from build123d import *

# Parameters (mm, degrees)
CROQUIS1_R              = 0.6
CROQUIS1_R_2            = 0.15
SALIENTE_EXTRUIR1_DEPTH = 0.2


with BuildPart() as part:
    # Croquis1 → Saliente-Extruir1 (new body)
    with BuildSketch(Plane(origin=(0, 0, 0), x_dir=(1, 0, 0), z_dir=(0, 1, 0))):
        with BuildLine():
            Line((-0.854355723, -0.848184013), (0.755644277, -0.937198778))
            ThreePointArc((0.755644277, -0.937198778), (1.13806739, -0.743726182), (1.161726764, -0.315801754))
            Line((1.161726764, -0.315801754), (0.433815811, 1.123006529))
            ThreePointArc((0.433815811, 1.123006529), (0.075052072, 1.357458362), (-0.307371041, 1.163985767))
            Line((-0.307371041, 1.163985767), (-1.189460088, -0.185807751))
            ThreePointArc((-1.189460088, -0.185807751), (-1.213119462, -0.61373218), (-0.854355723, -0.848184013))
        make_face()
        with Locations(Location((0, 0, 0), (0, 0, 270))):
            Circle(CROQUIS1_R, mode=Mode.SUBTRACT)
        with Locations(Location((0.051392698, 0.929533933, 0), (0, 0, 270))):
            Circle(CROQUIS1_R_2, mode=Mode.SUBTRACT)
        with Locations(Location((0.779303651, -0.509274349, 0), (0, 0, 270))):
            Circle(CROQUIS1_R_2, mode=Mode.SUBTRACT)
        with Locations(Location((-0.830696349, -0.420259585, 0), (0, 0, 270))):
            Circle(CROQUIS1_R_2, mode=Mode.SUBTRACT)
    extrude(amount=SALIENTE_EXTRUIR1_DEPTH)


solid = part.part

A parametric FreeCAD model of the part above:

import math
import FreeCAD as App
import Part
import Sketcher

V = App.Vector

doc = App.newDocument("Part")
body = doc.addObject("PartDesign::Body", "Body")

# Sketch on XZ plane
sketch1 = body.newObject("Sketcher::SketchObject", "Sketch")
sketch1.AttachmentSupport = (doc.getObject("XZ_Plane"), [""])
sketch1.MapMode = "FlatFace"
sketch1.addGeometry(Part.LineSegment(V(-0.85, 0.85, 0), V(0.76, 0.94, 0)), False)
sketch1.addGeometry(Part.ArcOfCircle(Part.Circle(V(0.78, 0.51, 0), V(0, 0, 1), 0.43), math.radians(-27), math.radians(93)), False)
sketch1.addGeometry(Part.LineSegment(V(1.16, 0.32, 0), V(0.43, -1.12, 0)), False)
sketch1.addGeometry(Part.ArcOfCircle(Part.Circle(V(0.05, -0.93, 0), V(0, 0, 1), 0.43), math.radians(-147), math.radians(-27)), False)
sketch1.addGeometry(Part.LineSegment(V(-0.31, -1.16, 0), V(-1.19, 0.19, 0)), False)
sketch1.addGeometry(Part.ArcOfCircle(Part.Circle(V(-0.83, 0.42, 0), V(0, 0, 1), 0.43), math.radians(93), math.radians(213)), False)
sketch1.addGeometry(Part.Circle(V(-0.83, 0.42, 0), V(0, 0, 1), 0.15), False)
sketch1.addGeometry(Part.Circle(V(0.78, 0.51, 0), V(0, 0, 1), 0.15), False)
sketch1.addGeometry(Part.Circle(V(0, 0, 0), V(0, 0, 1), 0.6), False)
sketch1.addGeometry(Part.Circle(V(0.05, -0.93, 0), V(0, 0, 1), 0.15), False)
sketch1.addConstraint(Sketcher.Constraint("Tangent", 0, 2, 1, 2))
sketch1.addConstraint(Sketcher.Constraint("Tangent", 1, 1, 2, 1))
sketch1.addConstraint(Sketcher.Constraint("Tangent", 2, 2, 3, 2))
sketch1.addConstraint(Sketcher.Constraint("Tangent", 3, 1, 4, 1))
sketch1.addConstraint(Sketcher.Constraint("Tangent", 4, 2, 5, 2))
sketch1.addConstraint(Sketcher.Constraint("Tangent", 5, 1, 0, 1))
sketch1.addConstraint(Sketcher.Constraint("Coincident", 8, 3, -1, 1))
sketch1.addConstraint(Sketcher.Constraint("Coincident", 6, 3, 5, 3))
sketch1.addConstraint(Sketcher.Constraint("Coincident", 7, 3, 1, 3))
sketch1.addConstraint(Sketcher.Constraint("Coincident", 9, 3, 3, 3))
sketch1.addConstraint(Sketcher.Constraint("Equal", 1, 3))
sketch1.addConstraint(Sketcher.Constraint("Equal", 3, 5))
sketch1.addConstraint(Sketcher.Constraint("Equal", 6, 7))
sketch1.addConstraint(Sketcher.Constraint("Equal", 7, 9))
sketch1.addConstraint(Sketcher.Constraint("Equal", 0, 2))
sketch1.addConstraint(Sketcher.Constraint("Equal", 2, 4))
sketch1.addConstraint(Sketcher.Constraint("Diameter", 6, 0.3))
sketch1.addConstraint(Sketcher.Constraint("Diameter", 8, 1.2))
sketch1.addConstraint(Sketcher.Constraint("DistanceX", 5, 3, 1, 3, 1.61))
sketch1.addConstraint(Sketcher.Constraint("Radius", 1, 0.428578))
sketch1.addConstraint(Sketcher.Constraint("DistanceY", -1, 1, 0, 2, 0.937199))
sketch1.addConstraint(Sketcher.Constraint("DistanceY", -1, 1, 1, 1, 0.315802))
sketch1.addConstraint(Sketcher.Constraint("DistanceX", 3, 1, -1, 1, 0.307371))
pad1 = body.newObject("PartDesign::Pad", "Pad")
pad1.Profile = sketch1
pad1.Length = 0.2
pad1.Reversed = True

doc.recompute()
